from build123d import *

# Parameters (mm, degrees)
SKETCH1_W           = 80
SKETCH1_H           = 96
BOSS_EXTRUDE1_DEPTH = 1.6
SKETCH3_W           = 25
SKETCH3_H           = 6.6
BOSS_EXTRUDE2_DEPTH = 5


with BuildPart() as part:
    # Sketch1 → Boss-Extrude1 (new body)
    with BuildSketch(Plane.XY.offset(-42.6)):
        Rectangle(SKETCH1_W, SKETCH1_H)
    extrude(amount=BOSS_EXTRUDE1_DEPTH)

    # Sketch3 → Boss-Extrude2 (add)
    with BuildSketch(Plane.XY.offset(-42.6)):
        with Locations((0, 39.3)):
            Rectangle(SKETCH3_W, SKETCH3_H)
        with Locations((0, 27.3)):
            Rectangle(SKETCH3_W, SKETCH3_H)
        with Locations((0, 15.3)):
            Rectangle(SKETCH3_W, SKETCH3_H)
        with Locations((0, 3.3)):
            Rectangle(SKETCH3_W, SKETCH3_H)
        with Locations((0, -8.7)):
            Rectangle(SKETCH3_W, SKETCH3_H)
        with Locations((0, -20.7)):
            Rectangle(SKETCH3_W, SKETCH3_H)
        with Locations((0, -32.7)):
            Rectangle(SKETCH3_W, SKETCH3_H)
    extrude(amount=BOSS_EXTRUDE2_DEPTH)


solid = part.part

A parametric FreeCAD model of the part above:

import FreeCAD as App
import Part
import Sketcher
from FreeCAD import Vector
Q = App.Units.Quantity

doc = App.newDocument("Part")
params = doc.addObject("Spreadsheet::Sheet", "Params")
for row, (alias, value) in enumerate([
    ("sketch1_width", "80 mm"),
    ("sketch1_height", "96 mm"),
    ("pad1_length", "1.6 mm"),
    ("sketch2_width", "25 mm"),
    ("sketch2_height", "6.6 mm"),
    ("pad2_length", "5 mm"),
], start=1):
    params.set(f"A{row}", alias)
    params.set(f"B{row}", "=" + value)
    params.setAlias(f"B{row}", alias)

body = doc.addObject("PartDesign::Body", "Body")

# Sketch on XY plane
sketch1 = body.newObject("Sketcher::SketchObject", "Sketch")
sketch1.AttachmentSupport = (doc.getObject("XY_Plane"), [""])
sketch1.MapMode = "FlatFace"
sketch1.AttachmentOffset = App.Placement(Vector(0, 0, -42.6), App.Rotation())
sketch1.addGeometry(Part.LineSegment(Vector(-40, 48, 0), Vector(-40, -48, 0)), False)
sketch1.addGeometry(Part.LineSegment(Vector(-40, -48, 0), Vector(40, -48, 0)), False)
sketch1.addGeometry(Part.LineSegment(Vector(40, -48, 0), Vector(40, 48, 0)), False)
sketch1.addGeometry(Part.LineSegment(Vector(40, 48, 0), Vector(-40, 48, 0)), False)
sketch1.addConstraint(Sketcher.Constraint("Coincident", 0, 2, 1, 1))
sketch1.addConstraint(Sketcher.Constraint("Coincident", 1, 2, 2, 1))
sketch1.addConstraint(Sketcher.Constraint("Coincident", 2, 2, 3, 1))
sketch1.addConstraint(Sketcher.Constraint("Coincident", 3, 2, 0, 1))
sketch1.addConstraint(Sketcher.Constraint("Vertical", 0))
sketch1.addConstraint(Sketcher.Constraint("Horizontal", 1))
sketch1.addConstraint(Sketcher.Constraint("Vertical", 2))
sketch1.addConstraint(Sketcher.Constraint("Horizontal", 3))
sketch1.addConstraint(Sketcher.Constraint("Symmetric", 0, 2, 2, 2, -1, 1))
sketch1.addConstraint(Sketcher.Constraint("DistanceX", 1, 1, 1, 2, Q("80 mm")))
sketch1.addConstraint(Sketcher.Constraint("DistanceY", 0, 2, 0, 1, Q("96 mm")))
sketch1.setExpression("Constraints[9]", "Params.sketch1_width")
sketch1.setExpression("Constraints[10]", "Params.sketch1_height")
pad1 = body.newObject("PartDesign::Pad", "Pad")
pad1.Profile = sketch1
pad1.setExpression("Length", "Params.pad1_length")

# Sketch on XY plane
sketch2 = body.newObject("Sketcher::SketchObject", "Sketch001")
sketch2.AttachmentSupport = (doc.getObject("XY_Plane"), [""])
sketch2.MapMode = "FlatFace"
sketch2.AttachmentOffset = App.Placement(Vector(0, 0, -42.6), App.Rotation())
sketch2.addGeometry(Part.LineSegment(Vector(-12, 43, 0), Vector(-12, 36, 0)), False)
sketch2.addGeometry(Part.LineSegment(Vector(-12, 36, 0), Vector(12, 36, 0)), False)
sketch2.addGeometry(Part.LineSegment(Vector(12, 36, 0), Vector(12, 43, 0)), False)
sketch2.addGeometry(Part.LineSegment(Vector(12, 43, 0), Vector(-12, 43, 0)), False)
sketch2.addGeometry(Part.LineSegment(Vector(-12, 31, 0), Vector(-12, 24, 0)), False)
sketch2.addGeometry(Part.LineSegment(Vector(-12, 24, 0), Vector(12, 24, 0)), False)
sketch2.addGeometry(Part.LineSegment(Vector(12, 24, 0), Vector(12, 31, 0)), False)
sketch2.addGeometry(Part.LineSegment(Vector(12, 31, 0), Vector(-12, 31, 0)), False)
sketch2.addGeometry(Part.LineSegment(Vector(-12, 19, 0), Vector(-12, 12, 0)), False)
sketch2.addGeometry(Part.LineSegment(Vector(-12, 12, 0), Vector(12, 12, 0)), False)
sketch2.addGeometry(Part.LineSegment(Vector(12, 12, 0), Vector(12, 19, 0)), False)
sketch2.addGeometry(Part.LineSegment(Vector(12, 19, 0), Vector(-12, 19, 0)), False)
sketch2.addGeometry(Part.LineSegment(Vector(-12, 7, 0), Vector(-12, 0, 0)), False)
sketch2.addGeometry(Part.LineSegment(Vector(-12, 0, 0), Vector(12, 0, 0)), False)
sketch2.addGeometry(Part.LineSegment(Vector(12, 0, 0), Vector(12, 7, 0)), False)
sketch2.addGeometry(Part.LineSegment(Vector(12, 7, 0), Vector(-12, 7, 0)), False)
sketch2.addGeometry(Part.LineSegment(Vector(-12, -5, 0), Vector(-12, -12, 0)), False)
sketch2.addGeometry(Part.LineSegment(Vector(-12, -12, 0), Vector(12, -12, 0)), False)
sketch2.addGeometry(Part.LineSegment(Vector(12, -12, 0), Vector(12, -5, 0)), False)
sketch2.addGeometry(Part.LineSegment(Vector(12, -5, 0), Vector(-12, -5, 0)), False)
sketch2.addGeometry(Part.LineSegment(Vector(-12, -17, 0), Vector(-12, -24, 0)), False)
sketch2.addGeometry(Part.LineSegment(Vector(-12, -24, 0), Vector(12, -24, 0)), False)
sketch2.addGeometry(Part.LineSegment(Vector(12, -24, 0), Vector(12, -17, 0)), False)
sketch2.addGeometry(Part.LineSegment(Vector(12, -17, 0), Vector(-12, -17, 0)), False)
sketch2.addGeometry(Part.LineSegment(Vector(-12, -29, 0), Vector(-12, -36, 0)), False)
sketch2.addGeometry(Part.LineSegment(Vector(-12, -36, 0), Vector(12, -36, 0)), False)
sketch2.addGeometry(Part.LineSegment(Vector(12, -36, 0), Vector(12, -29, 0)), False)
sketch2.addGeometry(Part.LineSegment(Vector(12, -29, 0), Vector(-12, -29, 0)), False)
sketch2.addConstraint(Sketcher.Constraint("Coincident", 0, 2, 1, 1))
sketch2.addConstraint(Sketcher.Constraint("Coincident", 1, 2, 2, 1))
sketch2.addConstraint(Sketcher.Constraint("Coincident", 2, 2, 3, 1))
sketch2.addConstraint(Sketcher.Constraint("Coincident", 3, 2, 0, 1))
sketch2.addConstraint(Sketcher.Constraint("Coincident", 4, 2, 5, 1))
sketch2.addConstraint(Sketcher.Constraint("Coincident", 5, 2, 6, 1))
sketch2.addConstraint(Sketcher.Constraint("Coincident", 6, 2, 7, 1))
sketch2.addConstraint(Sketcher.Constraint("Coincident", 7, 2, 4, 1))
sketch2.addConstraint(Sketcher.Constraint("Coincident", 8, 2, 9, 1))
sketch2.addConstraint(Sketcher.Constraint("Coincident", 9, 2, 10, 1))
sketch2.addConstraint(Sketcher.Constraint("Coincident", 10, 2, 11, 1))
sketch2.addConstraint(Sketcher.Constraint("Coincident", 11, 2, 8, 1))
sketch2.addConstraint(Sketcher.Constraint("Coincident", 12, 2, 13, 1))
sketch2.addConstraint(Sketcher.Constraint("Coincident", 13, 2, 14, 1))
sketch2.addConstraint(Sketcher.Constraint("Coincident", 14, 2, 15, 1))
sketch2.addConstraint(Sketcher.Constraint("Coincident", 15, 2, 12, 1))
sketch2.addConstraint(Sketcher.Constraint("Coincident", 16, 2, 17, 1))
sketch2.addConstraint(Sketcher.Constraint("Coincident", 17, 2, 18, 1))
sketch2.addConstraint(Sketcher.Constraint("Coincident", 18, 2, 19, 1))
sketch2.addConstraint(Sketcher.Constraint("Coincident", 19, 2, 16, 1))
sketch2.addConstraint(Sketcher.Constraint("Coincident", 20, 2, 21, 1))
sketch2.addConstraint(Sketcher.Constraint("Coincident", 21, 2, 22, 1))
sketch2.addConstraint(Sketcher.Constraint("Coincident", 22, 2, 23, 1))
sketch2.addConstraint(Sketcher.Constraint("Coincident", 23, 2, 20, 1))
sketch2.addConstraint(Sketcher.Constraint("Coincident", 24, 2, 25, 1))
sketch2.addConstraint(Sketcher.Constraint("Coincident", 25, 2, 26, 1))
sketch2.addConstraint(Sketcher.Constraint("Coincident", 26, 2, 27, 1))
sketch2.addConstraint(Sketcher.Constraint("Coincident", 27, 2, 24, 1))
sketch2.addConstraint(Sketcher.Constraint("Vertical", 0))
sketch2.addConstraint(Sketcher.Constraint("Horizontal", 1))
sketch2.addConstraint(Sketcher.Constraint("Vertical", 2))
sketch2.addConstraint(Sketcher.Constraint("Horizontal", 3))
sketch2.addConstraint(Sketcher.Constraint("Vertical", 4))
sketch2.addConstraint(Sketcher.Constraint("Horizontal", 5))
sketch2.addConstraint(Sketcher.Constraint("Vertical", 6))
sketch2.addConstraint(Sketcher.Constraint("Horizontal", 7))
sketch2.addConstraint(Sketcher.Constraint("Vertical", 8))
sketch2.addConstraint(Sketcher.Constraint("Horizontal", 9))
sketch2.addConstraint(Sketcher.Constraint("Vertical", 10))
sketch2.addConstraint(Sketcher.Constraint("Horizontal", 11))
sketch2.addConstraint(Sketcher.Constraint("Vertical", 12))
sketch2.addConstraint(Sketcher.Constraint("Horizontal", 13))
sketch2.addConstraint(Sketcher.Constraint("Vertical", 14))
sketch2.addConstraint(Sketcher.Constraint("Horizontal", 15))
sketch2.addConstraint(Sketcher.Constraint("Vertical", 16))
sketch2.addConstraint(Sketcher.Constraint("Horizontal", 17))
sketch2.addConstraint(Sketcher.Constraint("Vertical", 18))
sketch2.addConstraint(Sketcher.Constraint("Horizontal", 19))
sketch2.addConstraint(Sketcher.Constraint("Vertical", 20))
sketch2.addConstraint(Sketcher.Constraint("Horizontal", 21))
sketch2.addConstraint(Sketcher.Constraint("Vertical", 22))
sketch2.addConstraint(Sketcher.Constraint("Horizontal", 23))
sketch2.addConstraint(Sketcher.Constraint("Vertical", 24))
sketch2.addConstraint(Sketcher.Constraint("Horizontal", 25))
sketch2.addConstraint(Sketcher.Constraint("Vertical", 26))
sketch2.addConstraint(Sketcher.Constraint("Horizontal", 27))
sketch2.addConstraint(Sketcher.Constraint("Symmetric", 12, 2, 13, 2, -1, 1))
sketch2.addConstraint(Sketcher.Constraint("Symmetric", 9, 2, 16, 2, -1, 1))
sketch2.addConstraint(Sketcher.Constraint("Symmetric", 5, 2, 20, 2, -1, 1))
sketch2.addConstraint(Sketcher.Constraint("Symmetric", 1, 2, 24, 2, -1, 1))
sketch2.addConstraint(Sketcher.Constraint("Vertical", 3, 2, 4, 2))
sketch2.addConstraint(Sketcher.Constraint("Vertical", 2, 2, 5, 2))
sketch2.addConstraint(Sketcher.Constraint("Vertical", 7, 2, 8, 2))
sketch2.addConstraint(Sketcher.Constraint("Vertical", 6, 2, 9, 2))
sketch2.addConstraint(Sketcher.Constraint("Vertical", 11, 2, 12, 2))
sketch2.addConstraint(Sketcher.Constraint("Vertical", 10, 2, 13, 2))
sketch2.addConstraint(Sketcher.Constraint("Vertical", 14, 2, 17, 2))
sketch2.addConstraint(Sketcher.Constraint("Vertical", 18, 2, 21, 2))
sketch2.addConstraint(Sketcher.Constraint("Vertical", 22, 2, 25, 2))
sketch2.addConstraint(Sketcher.Constraint("Equal", 2, 4))
sketch2.addConstraint(Sketcher.Constraint("Equal", 6, 8))
sketch2.addConstraint(Sketcher.Constraint("Equal", 10, 12))
sketch2.addConstraint(Sketcher.Constraint("Equal", 14, 16))
sketch2.addConstraint(Sketcher.Constraint("Equal", 18, 20))
sketch2.addConstraint(Sketcher.Constraint("Equal", 22, 24))
sketch2.addConstraint(Sketcher.Constraint("DistanceX", 1, 1, 1, 2, Q("25 mm")))
sketch2.addConstraint(Sketcher.Constraint("DistanceY", 0, 2, 0, 1, Q("6.6 mm")))
sketch2.addConstraint(Sketcher.Constraint("DistanceY", -1, 1, 0, 2, Q("36 mm")))
sketch2.addConstraint(Sketcher.Constraint("DistanceY", -1, 1, 4, 2, Q("24 mm")))
sketch2.addConstraint(Sketcher.Constraint("DistanceY", -1, 1, 8, 2, Q("12 mm")))
sketch2.setExpression("Constraints[75]", "Params.sketch2_width")
sketch2.setExpression("Constraints[76]", "Params.sketch2_height")
pad2 = body.newObject("PartDesign::Pad", "Pad001")
pad2.Profile = sketch2
pad2.setExpression("Length", "Params.pad2_length")

doc.recompute()
